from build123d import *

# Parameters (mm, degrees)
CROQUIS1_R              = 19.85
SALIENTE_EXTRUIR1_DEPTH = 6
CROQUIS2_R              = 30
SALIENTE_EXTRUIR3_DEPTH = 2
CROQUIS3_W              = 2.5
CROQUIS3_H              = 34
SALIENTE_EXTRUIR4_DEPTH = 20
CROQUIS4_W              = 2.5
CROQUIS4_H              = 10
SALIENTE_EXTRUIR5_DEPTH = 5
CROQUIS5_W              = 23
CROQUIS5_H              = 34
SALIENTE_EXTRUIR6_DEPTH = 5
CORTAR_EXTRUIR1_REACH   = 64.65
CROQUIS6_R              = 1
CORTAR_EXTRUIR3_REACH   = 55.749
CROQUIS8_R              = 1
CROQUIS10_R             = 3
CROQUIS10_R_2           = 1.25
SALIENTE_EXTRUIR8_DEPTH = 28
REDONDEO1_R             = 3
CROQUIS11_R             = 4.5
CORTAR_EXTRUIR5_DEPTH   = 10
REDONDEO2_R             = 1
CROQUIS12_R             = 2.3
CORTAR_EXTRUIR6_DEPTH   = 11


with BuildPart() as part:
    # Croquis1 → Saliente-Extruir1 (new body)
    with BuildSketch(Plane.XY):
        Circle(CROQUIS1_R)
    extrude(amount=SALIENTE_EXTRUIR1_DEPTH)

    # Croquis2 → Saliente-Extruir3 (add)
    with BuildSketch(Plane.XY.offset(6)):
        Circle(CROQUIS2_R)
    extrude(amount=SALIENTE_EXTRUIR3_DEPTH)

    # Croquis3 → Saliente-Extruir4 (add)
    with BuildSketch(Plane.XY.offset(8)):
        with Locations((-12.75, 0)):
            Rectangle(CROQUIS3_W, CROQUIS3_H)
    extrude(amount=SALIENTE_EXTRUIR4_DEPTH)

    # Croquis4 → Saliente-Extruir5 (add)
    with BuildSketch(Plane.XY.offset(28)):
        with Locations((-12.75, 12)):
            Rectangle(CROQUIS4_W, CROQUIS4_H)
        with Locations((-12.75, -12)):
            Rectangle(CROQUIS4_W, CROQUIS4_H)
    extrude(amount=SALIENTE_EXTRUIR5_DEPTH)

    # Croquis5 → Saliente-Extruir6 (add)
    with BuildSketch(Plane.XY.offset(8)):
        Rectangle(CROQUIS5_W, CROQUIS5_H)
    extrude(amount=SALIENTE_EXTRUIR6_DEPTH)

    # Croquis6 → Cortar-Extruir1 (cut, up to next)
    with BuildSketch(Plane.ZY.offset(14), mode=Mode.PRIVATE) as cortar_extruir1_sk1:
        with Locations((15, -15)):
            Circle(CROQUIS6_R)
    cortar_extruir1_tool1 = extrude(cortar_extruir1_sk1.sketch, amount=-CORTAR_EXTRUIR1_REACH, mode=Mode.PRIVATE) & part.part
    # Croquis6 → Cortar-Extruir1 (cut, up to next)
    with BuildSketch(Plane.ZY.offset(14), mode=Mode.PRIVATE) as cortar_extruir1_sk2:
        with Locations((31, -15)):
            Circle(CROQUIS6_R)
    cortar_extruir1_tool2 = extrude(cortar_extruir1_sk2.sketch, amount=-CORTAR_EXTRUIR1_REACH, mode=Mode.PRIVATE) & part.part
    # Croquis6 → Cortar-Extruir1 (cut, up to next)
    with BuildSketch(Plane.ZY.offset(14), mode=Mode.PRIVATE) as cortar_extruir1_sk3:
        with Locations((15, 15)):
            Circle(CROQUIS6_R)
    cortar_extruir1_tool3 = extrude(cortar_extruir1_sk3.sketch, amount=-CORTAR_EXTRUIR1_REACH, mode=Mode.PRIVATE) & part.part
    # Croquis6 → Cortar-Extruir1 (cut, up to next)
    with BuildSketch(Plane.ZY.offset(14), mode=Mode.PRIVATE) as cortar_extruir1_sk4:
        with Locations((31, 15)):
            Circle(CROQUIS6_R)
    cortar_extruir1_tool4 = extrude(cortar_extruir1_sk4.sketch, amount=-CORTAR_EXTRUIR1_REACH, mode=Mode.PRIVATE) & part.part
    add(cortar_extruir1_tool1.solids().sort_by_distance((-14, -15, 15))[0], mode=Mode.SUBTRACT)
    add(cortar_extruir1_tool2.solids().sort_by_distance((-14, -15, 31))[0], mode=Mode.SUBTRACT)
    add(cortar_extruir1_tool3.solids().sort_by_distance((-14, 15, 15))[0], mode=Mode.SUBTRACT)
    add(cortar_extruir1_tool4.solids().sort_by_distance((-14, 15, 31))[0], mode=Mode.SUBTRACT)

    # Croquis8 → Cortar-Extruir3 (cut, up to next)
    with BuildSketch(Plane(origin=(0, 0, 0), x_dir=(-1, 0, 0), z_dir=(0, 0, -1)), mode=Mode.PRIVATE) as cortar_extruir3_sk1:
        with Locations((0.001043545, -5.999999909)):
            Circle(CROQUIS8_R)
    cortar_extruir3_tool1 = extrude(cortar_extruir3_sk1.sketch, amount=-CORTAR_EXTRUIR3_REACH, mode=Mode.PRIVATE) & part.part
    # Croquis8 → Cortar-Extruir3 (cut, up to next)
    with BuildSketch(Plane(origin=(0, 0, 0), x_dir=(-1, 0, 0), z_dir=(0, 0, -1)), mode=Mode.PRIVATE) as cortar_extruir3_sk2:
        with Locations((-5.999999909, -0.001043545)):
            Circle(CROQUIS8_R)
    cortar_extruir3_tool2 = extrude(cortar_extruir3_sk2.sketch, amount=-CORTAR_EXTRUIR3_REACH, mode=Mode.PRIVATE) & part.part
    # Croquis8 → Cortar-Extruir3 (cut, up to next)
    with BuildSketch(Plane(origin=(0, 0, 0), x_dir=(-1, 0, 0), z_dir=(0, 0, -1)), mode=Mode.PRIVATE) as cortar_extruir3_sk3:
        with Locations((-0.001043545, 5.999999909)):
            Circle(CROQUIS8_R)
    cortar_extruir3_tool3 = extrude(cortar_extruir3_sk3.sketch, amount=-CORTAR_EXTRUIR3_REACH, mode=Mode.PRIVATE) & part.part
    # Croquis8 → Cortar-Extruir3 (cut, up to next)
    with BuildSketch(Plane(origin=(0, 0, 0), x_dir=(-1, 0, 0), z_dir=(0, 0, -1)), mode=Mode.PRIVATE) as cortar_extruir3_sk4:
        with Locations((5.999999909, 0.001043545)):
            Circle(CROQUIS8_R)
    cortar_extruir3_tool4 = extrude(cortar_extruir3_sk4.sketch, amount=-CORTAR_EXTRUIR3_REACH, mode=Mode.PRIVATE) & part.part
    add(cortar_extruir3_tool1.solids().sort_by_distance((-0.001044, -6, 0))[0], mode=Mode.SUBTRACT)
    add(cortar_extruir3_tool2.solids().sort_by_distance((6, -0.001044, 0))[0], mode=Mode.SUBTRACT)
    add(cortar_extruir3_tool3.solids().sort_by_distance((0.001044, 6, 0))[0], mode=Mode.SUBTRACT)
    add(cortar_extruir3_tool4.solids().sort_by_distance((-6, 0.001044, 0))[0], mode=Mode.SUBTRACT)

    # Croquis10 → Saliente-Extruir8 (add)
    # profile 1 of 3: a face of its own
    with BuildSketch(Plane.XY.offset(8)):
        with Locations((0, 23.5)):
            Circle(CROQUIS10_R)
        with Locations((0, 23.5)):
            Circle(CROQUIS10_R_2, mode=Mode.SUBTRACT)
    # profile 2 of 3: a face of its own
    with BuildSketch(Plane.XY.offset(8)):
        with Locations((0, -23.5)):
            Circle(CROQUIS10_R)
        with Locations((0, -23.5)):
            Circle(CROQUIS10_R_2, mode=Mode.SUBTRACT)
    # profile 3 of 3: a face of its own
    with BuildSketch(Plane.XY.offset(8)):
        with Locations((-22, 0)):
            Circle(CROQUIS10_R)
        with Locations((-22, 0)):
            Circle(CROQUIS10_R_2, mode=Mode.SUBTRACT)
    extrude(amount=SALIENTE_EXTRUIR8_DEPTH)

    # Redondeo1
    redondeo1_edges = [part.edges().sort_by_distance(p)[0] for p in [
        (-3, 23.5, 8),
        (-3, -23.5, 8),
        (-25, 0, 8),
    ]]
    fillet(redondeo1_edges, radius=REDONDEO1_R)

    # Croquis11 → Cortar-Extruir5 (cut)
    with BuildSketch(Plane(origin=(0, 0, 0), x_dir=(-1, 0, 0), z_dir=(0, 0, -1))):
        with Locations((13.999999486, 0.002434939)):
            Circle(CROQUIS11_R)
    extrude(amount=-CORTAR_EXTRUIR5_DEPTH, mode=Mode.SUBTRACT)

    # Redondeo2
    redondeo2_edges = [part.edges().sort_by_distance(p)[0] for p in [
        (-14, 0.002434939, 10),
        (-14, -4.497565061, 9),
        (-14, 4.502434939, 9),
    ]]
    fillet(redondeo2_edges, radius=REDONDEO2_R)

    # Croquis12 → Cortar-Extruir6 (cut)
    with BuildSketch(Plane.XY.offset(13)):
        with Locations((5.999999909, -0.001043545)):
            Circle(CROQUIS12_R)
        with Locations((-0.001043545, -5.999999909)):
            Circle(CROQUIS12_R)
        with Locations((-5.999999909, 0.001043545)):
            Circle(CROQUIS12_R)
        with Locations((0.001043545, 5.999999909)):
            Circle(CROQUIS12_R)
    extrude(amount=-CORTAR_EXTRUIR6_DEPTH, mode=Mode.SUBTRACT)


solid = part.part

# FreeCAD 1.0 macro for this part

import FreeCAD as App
import Part
import Sketcher
from FreeCAD import Vector


def edges_at(feature, points):
    """Names of the edges that pass closest to the given points."""
    edges = feature.Shape.Edges
    near = lambda p: min(range(len(edges)), key=lambda i: edges[i].distToShape(Part.Vertex(*p))[0])
    return sorted({f"Edge{near(p) + 1}" for p in points})

doc = App.newDocument("Part")
params = doc.addObject("Spreadsheet::Sheet", "Params")
for row, (alias, value) in enumerate([
    ("sketch1_diameter", "39.7 mm"),
    ("pad1_length", "6 mm"),
    ("sketch2_diameter", "60 mm"),
    ("pad2_length", "2 mm"),
    ("sketch3_height", "34 mm"),
    ("sketch3_width", "2.5 mm"),
    ("pad3_length", "20 mm"),
    ("sketch4_height", "10 mm"),
    ("sketch4_width", "2.5 mm"),
    ("pad4_length", "5 mm"),
    ("sketch5_width", "23 mm"),
    ("sketch5_height", "34 mm"),
    ("pad5_length", "5 mm"),
    ("sketch6_diameter", "2 mm"),
    ("sketch7_diameter", "2 mm"),
    ("sketch8_diameter", "2 mm"),
    ("sketch9_diameter", "2 mm"),
    ("sketch10_diameter", "2 mm"),
    ("sketch11_diameter", "2 mm"),
    ("sketch12_diameter", "2 mm"),
    ("sketch13_diameter", "2 mm"),
    ("sketch14_diameter", "6 mm"),
    ("sketch14_diameter2", "2.5 mm"),
    ("pad6_length", "28 mm"),
    ("fillet_radius", "3 mm"),
    ("sketch15_diameter", "9 mm"),
    ("pocket9_length", "10 mm"),
    ("fillet2_radius", "1 mm"),
    ("sketch16_diameter", "4.6 mm"),
    ("pocket10_length", "11 mm"),
], start=1):
    params.set(f"A{row}", alias)
    params.set(f"B{row}", "=" + value)
    params.setAlias(f"B{row}", alias)

body = doc.addObject("PartDesign::Body", "Body")

# Sketch on XY plane
sketch1 = body.newObject("Sketcher::SketchObject", "Sketch")
sketch1.AttachmentSupport = (doc.getObject("XY_Plane"), [""])
sketch1.MapMode = "FlatFace"
sketch1.addGeometry(Part.Circle(Vector(0, 0, 0), Vector(0, 0, 1), 20), False)
sketch1.addConstraint(Sketcher.Constraint("Coincident", 0, 3, -1, 1))
sketch1.addConstraint(Sketcher.Constraint("Diameter", 0, 39.7))
sketch1.setExpression("Constraints[1]", "Params.sketch1_diameter")
pad1 = body.newObject("PartDesign::Pad", "Pad")
pad1.Profile = sketch1
pad1.setExpression("Length", "Params.pad1_length")

# Sketch on XY plane
sketch2 = body.newObject("Sketcher::SketchObject", "Sketch001")
sketch2.AttachmentSupport = (doc.getObject("XY_Plane"), [""])
sketch2.MapMode = "FlatFace"
sketch2.AttachmentOffset = App.Placement(Vector(0, 0, 6), App.Rotation())
sketch2.addGeometry(Part.Circle(Vector(0, 0, 0), Vector(0, 0, 1), 30), False)
sketch2.addConstraint(Sketcher.Constraint("Coincident", 0, 3, -1, 1))
sketch2.addConstraint(Sketcher.Constraint("Diameter", 0, 60.0))
sketch2.setExpression("Constraints[1]", "Params.sketch2_diameter")
pad2 = body.newObject("PartDesign::Pad", "Pad001")
pad2.Profile = sketch2
pad2.setExpression("Length", "Params.pad2_length")

# Sketch on XY plane
sketch3 = body.newObject("Sketcher::SketchObject", "Sketch002")
sketch3.AttachmentSupport = (doc.getObject("XY_Plane"), [""])
sketch3.MapMode = "FlatFace"
sketch3.AttachmentOffset = App.Placement(Vector(0, 0, 8), App.Rotation())
sketch3.addGeometry(Part.LineSegment(Vector(-14, 17, 0), Vector(-14, -17, 0)), False)
sketch3.addGeometry(Part.LineSegment(Vector(-14, -17, 0), Vector(-11.5, -17, 0)), False)
sketch3.addGeometry(Part.LineSegment(Vector(-11.5, -17, 0), Vector(-11.5, 17, 0)), False)
sketch3.addGeometry(Part.LineSegment(Vector(-11.5, 17, 0), Vector(-14, 17, 0)), False)
sketch3.addConstraint(Sketcher.Constraint("Coincident", 0, 2, 1, 1))
sketch3.addConstraint(Sketcher.Constraint("Coincident", 1, 2, 2, 1))
sketch3.addConstraint(Sketcher.Constraint("Coincident", 2, 2, 3, 1))
sketch3.addConstraint(Sketcher.Constraint("Coincident", 3, 2, 0, 1))
sketch3.addConstraint(Sketcher.Constraint("Vertical", 0))
sketch3.addConstraint(Sketcher.Constraint("Horizontal", 1))
sketch3.addConstraint(Sketcher.Constraint("Vertical", 2))
sketch3.addConstraint(Sketcher.Constraint("Horizontal", 3))
sketch3.addConstraint(Sketcher.Constraint("DistanceY", 0, 2, 0, 1, 34.0))
sketch3.addConstraint(Sketcher.Constraint("DistanceX", 1, 1, 1, 2, 2.5))
sketch3.addConstraint(Sketcher.Constraint("DistanceX", 0, 2, -1, 1, 14.0))
sketch3.addConstraint(Sketcher.Constraint("DistanceY", 0, 2, -1, 1, 17.0))
sketch3.setExpression("Constraints[8]", "Params.sketch3_height")
sketch3.setExpression("Constraints[9]", "Params.sketch3_width")
pad3 = body.newObject("PartDesign::Pad", "Pad002")
pad3.Profile = sketch3
pad3.setExpression("Length", "Params.pad3_length")

# Sketch on XY plane
sketch4 = body.newObject("Sketcher::SketchObject", "Sketch003")
sketch4.AttachmentSupport = (doc.getObject("XY_Plane"), [""])
sketch4.MapMode = "FlatFace"
sketch4.AttachmentOffset = App.Placement(Vector(0, 0, 28), App.Rotation())
sketch4.addGeometry(Part.LineSegment(Vector(-14, 17, 0), Vector(-14, 7, 0)), False)
sketch4.addGeometry(Part.LineSegment(Vector(-14, 7, 0), Vector(-11.5, 7, 0)), False)
sketch4.addGeometry(Part.LineSegment(Vector(-11.5, 7, 0), Vector(-11.5, 17, 0)), False)
sketch4.addGeometry(Part.LineSegment(Vector(-11.5, 17, 0), Vector(-14, 17, 0)), False)
sketch4.addGeometry(Part.LineSegment(Vector(-14, -7, 0), Vector(-14, -17, 0)), False)
sketch4.addGeometry(Part.LineSegment(Vector(-14, -17, 0), Vector(-11.5, -17, 0)), False)
sketch4.addGeometry(Part.LineSegment(Vector(-11.5, -17, 0), Vector(-11.5, -7, 0)), False)
sketch4.addGeometry(Part.LineSegment(Vector(-11.5, -7, 0), Vector(-14, -7, 0)), False)
sketch4.addConstraint(Sketcher.Constraint("Coincident", 0, 2, 1, 1))
sketch4.addConstraint(Sketcher.Constraint("Coincident", 1, 2, 2, 1))
sketch4.addConstraint(Sketcher.Constraint("Coincident", 2, 2, 3, 1))
sketch4.addConstraint(Sketcher.Constraint("Coincident", 3, 2, 0, 1))
sketch4.addConstraint(Sketcher.Constraint("Coincident", 4, 2, 5, 1))
sketch4.addConstraint(Sketcher.Constraint("Coincident", 5, 2, 6, 1))
sketch4.addConstraint(Sketcher.Constraint("Coincident", 6, 2, 7, 1))
sketch4.addConstraint(Sketcher.Constraint("Coincident", 7, 2, 4, 1))
sketch4.addConstraint(Sketcher.Constraint("Vertical", 0))
sketch4.addConstraint(Sketcher.Constraint("Horizontal", 1))
sketch4.addConstraint(Sketcher.Constraint("Vertical", 2))
sketch4.addConstraint(Sketcher.Constraint("Horizontal", 3))
sketch4.addConstraint(Sketcher.Constraint("Vertical", 4))
sketch4.addConstraint(Sketcher.Constraint("Horizontal", 5))
sketch4.addConstraint(Sketcher.Constraint("Vertical", 6))
sketch4.addConstraint(Sketcher.Constraint("Horizontal", 7))
sketch4.addConstraint(Sketcher.Constraint("Symmetric", 3, 2, 4, 2, -1))
sketch4.addConstraint(Sketcher.Constraint("Symmetric", 1, 2, 6, 2, -1))
sketch4.addConstraint(Sketcher.Constraint("DistanceY", 0, 2, 0, 1, 10.0))
sketch4.addConstraint(Sketcher.Constraint("DistanceX", 1, 1, 1, 2, 2.5))
sketch4.addConstraint(Sketcher.Constraint("DistanceX", 0, 2, -1, 1, 14.0))
sketch4.addConstraint(Sketcher.Constraint("DistanceY", -1, 1, 0, 2, 7.0))
sketch4.setExpression("Constraints[18]", "Params.sketch4_height")
sketch4.setExpression("Constraints[19]", "Params.sketch4_width")
pad4 = body.newObject("PartDesign::Pad", "Pad003")
pad4.Profile = sketch4
pad4.setExpression("Length", "Params.pad4_length")

# Sketch on XY plane
sketch5 = body.newObject("Sketcher::SketchObject", "Sketch004")
sketch5.AttachmentSupport = (doc.getObject("XY_Plane"), [""])
sketch5.MapMode = "FlatFace"
sketch5.AttachmentOffset = App.Placement(Vector(0, 0, 8), App.Rotation())
sketch5.addGeometry(Part.LineSegment(Vector(-12, 17, 0), Vector(-12, -17, 0)), False)
sketch5.addGeometry(Part.LineSegment(Vector(-12, -17, 0), Vector(12, -17, 0)), False)
sketch5.addGeometry(Part.LineSegment(Vector(12, -17, 0), Vector(12, 17, 0)), False)
sketch5.addGeometry(Part.LineSegment(Vector(12, 17, 0), Vector(-12, 17, 0)), False)
sketch5.addConstraint(Sketcher.Constraint("Coincident", 0, 2, 1, 1))
sketch5.addConstraint(Sketcher.Constraint("Coincident", 1, 2, 2, 1))
sketch5.addConstraint(Sketcher.Constraint("Coincident", 2, 2, 3, 1))
sketch5.addConstraint(Sketcher.Constraint("Coincident", 3, 2, 0, 1))
sketch5.addConstraint(Sketcher.Constraint("Vertical", 0))
sketch5.addConstraint(Sketcher.Constraint("Horizontal", 1))
sketch5.addConstraint(Sketcher.Constraint("Vertical", 2))
sketch5.addConstraint(Sketcher.Constraint("Horizontal", 3))
sketch5.addConstraint(Sketcher.Constraint("Symmetric", 0, 2, 2, 2, -1, 1))
sketch5.addConstraint(Sketcher.Constraint("DistanceX", 1, 1, 1, 2, 23.0))
sketch5.addConstraint(Sketcher.Constraint("DistanceY", 0, 2, 0, 1, 34.0))
sketch5.setExpression("Constraints[9]", "Params.sketch5_width")
sketch5.setExpression("Constraints[10]", "Params.sketch5_height")
pad5 = body.newObject("PartDesign::Pad", "Pad004")
pad5.Profile = sketch5
pad5.setExpression("Length", "Params.pad5_length")

# Sketch on YZ plane
sketch6 = body.newObject("Sketcher::SketchObject", "Sketch005")
sketch6.AttachmentSupport = (doc.getObject("YZ_Plane"), [""])
sketch6.MapMode = "FlatFace"
sketch6.AttachmentOffset = App.Placement(Vector(0, 0, -14), App.Rotation())
sketch6.addGeometry(Part.Circle(Vector(-15, 15, 0), Vector(0, 0, 1), 1), False)
sketch6.addConstraint(Sketcher.Constraint("Diameter", 0, 2.0))
sketch6.addConstraint(Sketcher.Constraint("DistanceX", 0, 3, -1, 1, 15.0))
sketch6.addConstraint(Sketcher.Constraint("DistanceY", -1, 1, 0, 3, 15.0))
sketch6.setExpression("Constraints[0]", "Params.sketch6_diameter")
pocket1 = body.newObject("PartDesign::Pocket", "Pocket")
pocket1.Profile = sketch6
pocket1.Type = "UpToFirst"
pocket1.Reversed = True

# Sketch on YZ plane
sketch7 = body.newObject("Sketcher::SketchObject", "Sketch006")
sketch7.AttachmentSupport = (doc.getObject("YZ_Plane"), [""])
sketch7.MapMode = "FlatFace"
sketch7.AttachmentOffset = App.Placement(Vector(0, 0, -14), App.Rotation())
sketch7.addGeometry(Part.Circle(Vector(-15, 31, 0), Vector(0, 0, 1), 1), False)
sketch7.addConstraint(Sketcher.Constraint("Diameter", 0, 2.0))
sketch7.addConstraint(Sketcher.Constraint("DistanceX", 0, 3, -1, 1, 15.0))
sketch7.addConstraint(Sketcher.Constraint("DistanceY", -1, 1, 0, 3, 31.0))
sketch7.setExpression("Constraints[0]", "Params.sketch7_diameter")
pocket2 = body.newObject("PartDesign::Pocket", "Pocket001")
pocket2.Profile = sketch7
pocket2.Type = "UpToFirst"
pocket2.Reversed = True

# Sketch on YZ plane
sketch8 = body.newObject("Sketcher::SketchObject", "Sketch007")
sketch8.AttachmentSupport = (doc.getObject("YZ_Plane"), [""])
sketch8.MapMode = "FlatFace"
sketch8.AttachmentOffset = App.Placement(Vector(0, 0, -14), App.Rotation())
sketch8.addGeometry(Part.Circle(Vector(15, 15, 0), Vector(0, 0, 1), 1), False)
sketch8.addConstraint(Sketcher.Constraint("Diameter", 0, 2.0))
sketch8.addConstraint(Sketcher.Constraint("DistanceX", -1, 1, 0, 3, 15.0))
sketch8.addConstraint(Sketcher.Constraint("DistanceY", -1, 1, 0, 3, 15.0))
sketch8.setExpression("Constraints[0]", "Params.sketch8_diameter")
pocket3 = body.newObject("PartDesign::Pocket", "Pocket002")
pocket3.Profile = sketch8
pocket3.Type = "UpToFirst"
pocket3.Reversed = True

# Sketch on YZ plane
sketch9 = body.newObject("Sketcher::SketchObject", "Sketch008")
sketch9.AttachmentSupport = (doc.getObject("YZ_Plane"), [""])
sketch9.MapMode = "FlatFace"
sketch9.AttachmentOffset = App.Placement(Vector(0, 0, -14), App.Rotation())
sketch9.addGeometry(Part.Circle(Vector(15, 31, 0), Vector(0, 0, 1), 1), False)
sketch9.addConstraint(Sketcher.Constraint("Diameter", 0, 2.0))
sketch9.addConstraint(Sketcher.Constraint("DistanceX", -1, 1, 0, 3, 15.0))
sketch9.addConstraint(Sketcher.Constraint("DistanceY", -1, 1, 0, 3, 31.0))
sketch9.setExpression("Constraints[0]", "Params.sketch9_diameter")
pocket4 = body.newObject("PartDesign::Pocket", "Pocket003")
pocket4.Profile = sketch9
pocket4.Type = "UpToFirst"
pocket4.Reversed = True

# Sketch on XY plane
sketch10 = body.newObject("Sketcher::SketchObject", "Sketch009")
sketch10.AttachmentSupport = (doc.getObject("XY_Plane"), [""])
sketch10.MapMode = "FlatFace"
sketch10.addGeometry(Part.Circle(Vector(0, -6, 0), Vector(0, 0, 1), 1), False)
sketch10.addConstraint(Sketcher.Constraint("Diameter", 0, 2.0))
sketch10.addConstraint(Sketcher.Constraint("DistanceY", 0, 3, -1, 1, 6.0))
sketch10.addConstraint(Sketcher.Constraint("DistanceX", 0, 3, -1, 1, 0.001044))
sketch10.setExpression("Constraints[0]", "Params.sketch10_diameter")
pocket5 = body.newObject("PartDesign::Pocket", "Pocket004")
pocket5.Profile = sketch10
pocket5.Type = "UpToFirst"
pocket5.Reversed = True

# Sketch on XY plane
sketch11 = body.newObject("Sketcher::SketchObject", "Sketch010")
sketch11.AttachmentSupport = (doc.getObject("XY_Plane"), [""])
sketch11.MapMode = "FlatFace"
sketch11.addGeometry(Part.Circle(Vector(6, 0, 0), Vector(0, 0, 1), 1), False)
sketch11.addConstraint(Sketcher.Constraint("Diameter", 0, 2.0))
sketch11.addConstraint(Sketcher.Constraint("DistanceX", -1, 1, 0, 3, 6.0))
sketch11.addConstraint(Sketcher.Constraint("DistanceY", 0, 3, -1, 1, 0.001044))
sketch11.setExpression("Constraints[0]", "Params.sketch11_diameter")
pocket6 = body.newObject("PartDesign::Pocket", "Pocket005")
pocket6.Profile = sketch11
pocket6.Type = "UpToFirst"
pocket6.Reversed = True

# Sketch on XY plane
sketch12 = body.newObject("Sketcher::SketchObject", "Sketch011")
sketch12.AttachmentSupport = (doc.getObject("XY_Plane"), [""])
sketch12.MapMode = "FlatFace"
sketch12.addGeometry(Part.Circle(Vector(0, 6, 0), Vector(0, 0, 1), 1), False)
sketch12.addConstraint(Sketcher.Constraint("Diameter", 0, 2.0))
sketch12.addConstraint(Sketcher.Constraint("DistanceY", -1, 1, 0, 3, 6.0))
sketch12.addConstraint(Sketcher.Constraint("DistanceX", -1, 1, 0, 3, 0.001044))
sketch12.setExpression("Constraints[0]", "Params.sketch12_diameter")
pocket7 = body.newObject("PartDesign::Pocket", "Pocket006")
pocket7.Profile = sketch12
pocket7.Type = "UpToFirst"
pocket7.Reversed = True

# Sketch on XY plane
sketch13 = body.newObject("Sketcher::SketchObject", "Sketch012")
sketch13.AttachmentSupport = (doc.getObject("XY_Plane"), [""])
sketch13.MapMode = "FlatFace"
sketch13.addGeometry(Part.Circle(Vector(-6, 0, 0), Vector(0, 0, 1), 1), False)
sketch13.addConstraint(Sketcher.Constraint("Diameter", 0, 2.0))
sketch13.addConstraint(Sketcher.Constraint("DistanceX", 0, 3, -1, 1, 6.0))
sketch13.addConstraint(Sketcher.Constraint("DistanceY", -1, 1, 0, 3, 0.001044))
sketch13.setExpression("Constraints[0]", "Params.sketch13_diameter")
pocket8 = body.newObject("PartDesign::Pocket", "Pocket007")
pocket8.Profile = sketch13
pocket8.Type = "UpToFirst"
pocket8.Reversed = True

# Sketch on XY plane
sketch14 = body.newObject("Sketcher::SketchObject", "Sketch013")
sketch14.AttachmentSupport = (doc.getObject("XY_Plane"), [""])
sketch14.MapMode = "FlatFace"
sketch14.AttachmentOffset = App.Placement(Vector(0, 0, 8), App.Rotation())
sketch14.addGeometry(Part.Circle(Vector(0, 23.5, 0), Vector(0, 0, 1), 3), False)
sketch14.addGeometry(Part.Circle(Vector(0, 23.5, 0), Vector(0, 0, 1), 1.2), False)
sketch14.addGeometry(Part.Circle(Vector(0, -23.5, 0), Vector(0, 0, 1), 3), False)
sketch14.addGeometry(Part.Circle(Vector(0, -23.5, 0), Vector(0, 0, 1), 1.2), False)
sketch14.addGeometry(Part.Circle(Vector(-22, 0, 0), Vector(0, 0, 1), 3), False)
sketch14.addGeometry(Part.Circle(Vector(-22, 0, 0), Vector(0, 0, 1), 1.2), False)
sketch14.addConstraint(Sketcher.Constraint("Coincident", 1, 3, 0, 3))
sketch14.addConstraint(Sketcher.Constraint("Coincident", 3, 3, 2, 3))
sketch14.addConstraint(Sketcher.Constraint("Coincident", 5, 3, 4, 3))
sketch14.addConstraint(Sketcher.Constraint("Equal", 0, 2))
sketch14.addConstraint(Sketcher.Constraint("Equal", 1, 3))
sketch14.addConstraint(Sketcher.Constraint("Equal", 2, 4))
sketch14.addConstraint(Sketcher.Constraint("Equal", 3, 5))
sketch14.addConstraint(Sketcher.Constraint("Symmetric", 0, 3, 2, 3, -1, 1))
sketch14.addConstraint(Sketcher.Constraint("PointOnObject", 0, 3, -2))
sketch14.addConstraint(Sketcher.Constraint("PointOnObject", 4, 3, -1))
sketch14.addConstraint(Sketcher.Constraint("Diameter", 0, 6.0))
sketch14.addConstraint(Sketcher.Constraint("Diameter", 1, 2.5))
sketch14.addConstraint(Sketcher.Constraint("DistanceX", 4, 3, -1, 1, 22.0))
sketch14.addConstraint(Sketcher.Constraint("DistanceY", 2, 3, 0, 3, 47.0))
sketch14.setExpression("Constraints[10]", "Params.sketch14_diameter")
sketch14.setExpression("Constraints[11]", "Params.sketch14_diameter2")
pad6 = body.newObject("PartDesign::Pad", "Pad005")
pad6.Profile = sketch14
pad6.setExpression("Length", "Params.pad6_length")
doc.recompute()

fillet = body.newObject("PartDesign::Fillet", "Fillet")
fillet.Base = (pad6, edges_at(pad6, [(-3, 23.5, 8), (-3, -23.5, 8), (-25, 0, 8)]))
fillet.setExpression("Radius", "Params.fillet_radius")

# Sketch on XY plane
sketch15 = body.newObject("Sketcher::SketchObject", "Sketch014")
sketch15.AttachmentSupport = (doc.getObject("XY_Plane"), [""])
sketch15.MapMode = "FlatFace"
sketch15.addGeometry(Part.Circle(Vector(-14, 0, 0), Vector(0, 0, 1), 4.5), False)
sketch15.addConstraint(Sketcher.Constraint("Diameter", 0, 9.0))
sketch15.addConstraint(Sketcher.Constraint("DistanceX", 0, 3, -1, 1, 13.999999))
sketch15.addConstraint(Sketcher.Constraint("DistanceY", -1, 1, 0, 3, 0.002435))
sketch15.setExpression("Constraints[0]", "Params.sketch15_diameter")
pocket9 = body.newObject("PartDesign::Pocket", "Pocket008")
pocket9.Profile = sketch15
pocket9.setExpression("Length", "Params.pocket9_length")
pocket9.Reversed = True
doc.recompute()

fillet2 = body.newObject("PartDesign::Fillet", "Fillet001")
fillet2.Base = (pocket9, edges_at(pocket9, [(-14, 0.002, 10), (-14, -4.498, 9), (-14, 4.502, 9)]))
fillet2.setExpression("Radius", "Params.fillet2_radius")

# Sketch on XY plane
sketch16 = body.newObject("Sketcher::SketchObject", "Sketch015")
sketch16.AttachmentSupport = (doc.getObject("XY_Plane"), [""])
sketch16.MapMode = "FlatFace"
sketch16.AttachmentOffset = App.Placement(Vector(0, 0, 13), App.Rotation())
sketch16.addGeometry(Part.Circle(Vector(6, 0, 0), Vector(0, 0, 1), 2.3), False)
sketch16.addGeometry(Part.Circle(Vector(0, -6, 0), Vector(0, 0, 1), 2.3), False)
sketch16.addGeometry(Part.Circle(Vector(-6, 0, 0), Vector(0, 0, 1), 2.3), False)
sketch16.addGeometry(Part.Circle(Vector(0, 6, 0), Vector(0, 0, 1), 2.3), False)
sketch16.addConstraint(Sketcher.Constraint("Equal", 0, 1))
sketch16.addConstraint(Sketcher.Constraint("Equal", 1, 2))
sketch16.addConstraint(Sketcher.Constraint("Equal", 2, 3))
sketch16.addConstraint(Sketcher.Constraint("Symmetric", 0, 3, 2, 3, -1, 1))
sketch16.addConstraint(Sketcher.Constraint("Symmetric", 1, 3, 3, 3, -1, 1))
sketch16.addConstraint(Sketcher.Constraint("Diameter", 0, 4.6))
sketch16.addConstraint(Sketcher.Constraint("DistanceX", -1, 1, 0, 3, 6.0))
sketch16.addConstraint(Sketcher.Constraint("DistanceY", 1, 3, -1, 1, 6.0))
sketch16.addConstraint(Sketcher.Constraint("DistanceY", 0, 3, -1, 1, 0.001044))
sketch16.addConstraint(Sketcher.Constraint("DistanceX", 1, 3, -1, 1, 0.001044))
sketch16.setExpression("Constraints[5]", "Params.sketch16_diameter")
pocket10 = body.newObject("PartDesign::Pocket", "Pocket009")
pocket10.Profile = sketch16
pocket10.setExpression("Length", "Params.pocket10_length")

doc.recompute()
